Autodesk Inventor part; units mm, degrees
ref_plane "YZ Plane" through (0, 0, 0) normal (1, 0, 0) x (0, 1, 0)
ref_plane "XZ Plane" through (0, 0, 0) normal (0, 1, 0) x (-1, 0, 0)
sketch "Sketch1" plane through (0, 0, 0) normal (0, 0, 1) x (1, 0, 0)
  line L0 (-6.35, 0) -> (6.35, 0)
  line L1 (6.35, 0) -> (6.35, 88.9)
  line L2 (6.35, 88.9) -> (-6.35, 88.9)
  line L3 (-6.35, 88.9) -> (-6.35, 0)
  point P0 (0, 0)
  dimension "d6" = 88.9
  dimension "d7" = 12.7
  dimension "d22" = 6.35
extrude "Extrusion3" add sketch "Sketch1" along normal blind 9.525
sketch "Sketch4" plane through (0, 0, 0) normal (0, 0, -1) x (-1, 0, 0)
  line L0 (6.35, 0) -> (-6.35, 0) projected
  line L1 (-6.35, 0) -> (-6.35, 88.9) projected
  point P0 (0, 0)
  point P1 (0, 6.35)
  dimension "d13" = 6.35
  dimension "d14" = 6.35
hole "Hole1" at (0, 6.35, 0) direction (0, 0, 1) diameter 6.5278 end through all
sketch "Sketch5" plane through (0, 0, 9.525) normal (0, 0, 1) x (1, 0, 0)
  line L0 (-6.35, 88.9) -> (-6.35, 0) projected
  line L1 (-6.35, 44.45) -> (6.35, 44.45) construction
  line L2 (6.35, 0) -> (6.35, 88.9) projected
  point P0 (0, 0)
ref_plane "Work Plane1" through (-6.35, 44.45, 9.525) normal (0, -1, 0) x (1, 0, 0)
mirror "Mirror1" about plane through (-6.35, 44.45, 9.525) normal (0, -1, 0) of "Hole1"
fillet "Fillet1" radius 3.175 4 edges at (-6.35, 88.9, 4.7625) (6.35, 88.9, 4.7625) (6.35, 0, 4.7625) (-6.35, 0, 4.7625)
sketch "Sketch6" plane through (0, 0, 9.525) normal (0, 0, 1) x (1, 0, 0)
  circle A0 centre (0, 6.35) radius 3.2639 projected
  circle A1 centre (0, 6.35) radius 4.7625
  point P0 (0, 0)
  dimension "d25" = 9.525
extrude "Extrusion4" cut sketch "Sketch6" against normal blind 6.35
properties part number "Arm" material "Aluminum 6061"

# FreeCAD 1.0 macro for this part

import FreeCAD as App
import Part
import Sketcher
Q = App.Units.Quantity


def edges_at(feature, points):
    """Names of the edges that pass closest to the given points."""
    edges = feature.Shape.Edges
    near = lambda p: min(range(len(edges)), key=lambda i: edges[i].distToShape(Part.Vertex(*p))[0])
    return sorted({f"Edge{near(p) + 1}" for p in points})

doc = App.newDocument("Part")
params = doc.addObject("Spreadsheet::Sheet", "Params")
for row, (alias, value) in enumerate([
    ("sketch1_width", "0.5 in"),
    ("sketch1_height", "3.5 in"),
    ("pad1_length", "0.375 in"),
    ("sketch2_diameter", "0.257 in"),
    ("hole_diameter", "0.257 in"),
    ("fillet_radius", "0.125 in"),
    ("sketch3_diameter", "0.375 in"),
    ("sketch3_diameter2", "0.257 in"),
    ("pocket1_length", "0.25 in"),
], start=1):
    params.set(f"A{row}", alias)
    params.set(f"B{row}", "=" + value)
    params.setAlias(f"B{row}", alias)

body = doc.addObject("PartDesign::Body", "Body")

# Sketch on XY plane
sketch1 = body.newObject("Sketcher::SketchObject", "Sketch")
sketch1.AttachmentSupport = (doc.getObject("XY_Plane"), [""])
sketch1.MapMode = "FlatFace"
sketch1.addGeometry(Part.LineSegment(App.Vector(-6.35, 88.9, 0), App.Vector(-6.35, 0, 0)), False)
sketch1.addGeometry(Part.LineSegment(App.Vector(-6.35, 0, 0), App.Vector(6.35, 0, 0)), False)
sketch1.addGeometry(Part.LineSegment(App.Vector(6.35, 0, 0), App.Vector(6.35, 88.9, 0)), False)
sketch1.addGeometry(Part.LineSegment(App.Vector(6.35, 88.9, 0), App.Vector(-6.35, 88.9, 0)), False)
sketch1.addConstraint(Sketcher.Constraint("Coincident", 0, 2, 1, 1))
sketch1.addConstraint(Sketcher.Constraint("Coincident", 1, 2, 2, 1))
sketch1.addConstraint(Sketcher.Constraint("Coincident", 2, 2, 3, 1))
sketch1.addConstraint(Sketcher.Constraint("Coincident", 3, 2, 0, 1))
sketch1.addConstraint(Sketcher.Constraint("Vertical", 0))
sketch1.addConstraint(Sketcher.Constraint("Horizontal", 1))
sketch1.addConstraint(Sketcher.Constraint("Vertical", 2))
sketch1.addConstraint(Sketcher.Constraint("Horizontal", 3))
sketch1.addConstraint(Sketcher.Constraint("Symmetric", 0, 2, 1, 2, -1, 1))
sketch1.addConstraint(Sketcher.Constraint("DistanceX", 1, 1, 1, 2, Q("0.5 in")))
sketch1.addConstraint(Sketcher.Constraint("DistanceY", 0, 2, 0, 1, Q("3.5 in")))
sketch1.setExpression("Constraints[9]", "Params.sketch1_width")
sketch1.setExpression("Constraints[10]", "Params.sketch1_height")
pad1 = body.newObject("PartDesign::Pad", "Pad")
pad1.Profile = sketch1
pad1.setExpression("Length", "Params.pad1_length")

# Sketch on XY plane
sketch2 = body.newObject("Sketcher::SketchObject", "Sketch001")
sketch2.AttachmentSupport = (doc.getObject("XY_Plane"), [""])
sketch2.MapMode = "FlatFace"
sketch2.addGeometry(Part.Circle(App.Vector(0, 6.35, 0), App.Vector(0, 0, 1), 3.2639), False)
sketch2.addConstraint(Sketcher.Constraint("PointOnObject", 0, 3, -2))
sketch2.addConstraint(Sketcher.Constraint("Diameter", 0, Q("0.257 in")))
sketch2.addConstraint(Sketcher.Constraint("DistanceY", -1, 1, 0, 3, Q("0.25 in")))
sketch2.setExpression("Constraints[1]", "Params.sketch2_diameter")
doc.recompute()
hole = body.newObject("PartDesign::Hole", "Hole")
hole.Profile = sketch2
hole.ThreadType = "None"
hole.setExpression("Diameter", "Params.hole_diameter")
hole.DepthType = "ThroughAll"
hole.Reversed = True
doc.recompute()

datumplane = body.newObject("PartDesign::Plane", "DatumPlane")
datumplane.AttachmentSupport = (doc.getObject("XZ_Plane"), [""])
datumplane.MapMode = "FlatFace"
datumplane.AttachmentOffset = App.Placement(App.Vector(0, 0, -1.75 * 25.4), App.Rotation())
mirrored = body.newObject("PartDesign::Mirrored", "Mirrored")
mirrored.Originals = [hole]
mirrored.MirrorPlane = (datumplane, [""])
body.Tip = mirrored
doc.recompute()

fillet = body.newObject("PartDesign::Fillet", "Fillet")
fillet.Base = (mirrored, edges_at(mirrored, [
    (-6.35, 88.9, 4.763),
    (6.35, 88.9, 4.763),
    (6.35, 0, 4.763),
    (-6.35, 0, 4.763),
]))
fillet.setExpression("Radius", "Params.fillet_radius")

# Sketch on XY plane
sketch3 = body.newObject("Sketcher::SketchObject", "Sketch002")
sketch3.AttachmentSupport = (doc.getObject("XY_Plane"), [""])
sketch3.MapMode = "FlatFace"
sketch3.AttachmentOffset = App.Placement(App.Vector(0, 0, 0.375 * 25.4), App.Rotation())
sketch3.addGeometry(Part.Circle(App.Vector(0, 6.35, 0), App.Vector(0, 0, 1), 4.7625), False)
sketch3.addGeometry(Part.Circle(App.Vector(0, 6.35, 0), App.Vector(0, 0, 1), 3.2639), False)
sketch3.addConstraint(Sketcher.Constraint("Coincident", 1, 3, 0, 3))
sketch3.addConstraint(Sketcher.Constraint("PointOnObject", 0, 3, -2))
sketch3.addConstraint(Sketcher.Constraint("Diameter", 0, Q("0.375 in")))
sketch3.addConstraint(Sketcher.Constraint("Diameter", 1, Q("0.257 in")))
sketch3.addConstraint(Sketcher.Constraint("DistanceY", -1, 1, 0, 3, Q("0.25 in")))
sketch3.setExpression("Constraints[2]", "Params.sketch3_diameter")
sketch3.setExpression("Constraints[3]", "Params.sketch3_diameter2")
pocket1 = body.newObject("PartDesign::Pocket", "Pocket")
pocket1.Profile = sketch3
pocket1.setExpression("Length", "Params.pocket1_length")

doc.recompute()
